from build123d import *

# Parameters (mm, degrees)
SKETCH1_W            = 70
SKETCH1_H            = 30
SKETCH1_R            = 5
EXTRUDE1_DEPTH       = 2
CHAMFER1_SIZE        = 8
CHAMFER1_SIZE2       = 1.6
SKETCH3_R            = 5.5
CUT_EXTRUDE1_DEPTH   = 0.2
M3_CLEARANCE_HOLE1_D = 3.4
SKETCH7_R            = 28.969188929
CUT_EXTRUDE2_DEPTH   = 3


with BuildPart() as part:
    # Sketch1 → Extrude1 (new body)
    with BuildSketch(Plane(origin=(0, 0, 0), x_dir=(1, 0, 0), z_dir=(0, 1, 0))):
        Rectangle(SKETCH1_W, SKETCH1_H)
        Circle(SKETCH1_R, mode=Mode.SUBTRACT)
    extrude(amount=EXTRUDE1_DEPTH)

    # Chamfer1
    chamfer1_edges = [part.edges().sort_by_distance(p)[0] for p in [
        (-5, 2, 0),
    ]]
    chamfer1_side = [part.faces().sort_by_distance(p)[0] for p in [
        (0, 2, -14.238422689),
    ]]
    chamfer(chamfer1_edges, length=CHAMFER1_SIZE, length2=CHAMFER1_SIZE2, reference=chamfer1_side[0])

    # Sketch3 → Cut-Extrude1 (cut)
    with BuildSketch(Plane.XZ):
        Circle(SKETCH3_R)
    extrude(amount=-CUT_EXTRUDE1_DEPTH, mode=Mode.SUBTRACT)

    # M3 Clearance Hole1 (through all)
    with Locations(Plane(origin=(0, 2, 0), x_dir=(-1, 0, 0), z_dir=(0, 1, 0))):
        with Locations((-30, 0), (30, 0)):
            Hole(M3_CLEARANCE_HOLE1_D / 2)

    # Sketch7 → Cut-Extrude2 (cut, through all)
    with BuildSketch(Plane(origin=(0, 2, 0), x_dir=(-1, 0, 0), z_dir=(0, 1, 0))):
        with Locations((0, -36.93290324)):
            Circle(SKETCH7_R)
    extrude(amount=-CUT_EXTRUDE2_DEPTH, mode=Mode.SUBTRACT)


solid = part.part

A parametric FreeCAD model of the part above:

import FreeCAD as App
import Part
import Sketcher

V = App.Vector
Q = App.Units.Quantity


def edges_at(feature, points):
    """Names of the edges that pass closest to the given points."""
    edges = feature.Shape.Edges
    near = lambda p: min(range(len(edges)), key=lambda i: edges[i].distToShape(Part.Vertex(*p))[0])
    return sorted({f"Edge{near(p) + 1}" for p in points})

doc = App.newDocument("Part")
body = doc.addObject("PartDesign::Body", "Body")

# Sketch on XZ plane
sketch1 = body.newObject("Sketcher::SketchObject", "Sketch")
sketch1.AttachmentSupport = (doc.getObject("XZ_Plane"), [""])
sketch1.MapMode = "FlatFace"
sketch1.addGeometry(Part.LineSegment(V(-35, -15, 0), V(-35, 15, 0)), False)
sketch1.addGeometry(Part.LineSegment(V(-35, 15, 0), V(35, 15, 0)), False)
sketch1.addGeometry(Part.LineSegment(V(35, 15, 0), V(35, -15, 0)), False)
sketch1.addGeometry(Part.LineSegment(V(35, -15, 0), V(-35, -15, 0)), False)
sketch1.addGeometry(Part.Circle(V(0, 0, 0), V(0, 0, 1), 5), False)
sketch1.addConstraint(Sketcher.Constraint("Coincident", 0, 2, 1, 1))
sketch1.addConstraint(Sketcher.Constraint("Coincident", 1, 2, 2, 1))
sketch1.addConstraint(Sketcher.Constraint("Coincident", 2, 2, 3, 1))
sketch1.addConstraint(Sketcher.Constraint("Coincident", 3, 2, 0, 1))
sketch1.addConstraint(Sketcher.Constraint("Vertical", 0))
sketch1.addConstraint(Sketcher.Constraint("Horizontal", 1))
sketch1.addConstraint(Sketcher.Constraint("Vertical", 2))
sketch1.addConstraint(Sketcher.Constraint("Horizontal", 3))
sketch1.addConstraint(Sketcher.Constraint("Coincident", 4, 3, -1, 1))
sketch1.addConstraint(Sketcher.Constraint("Symmetric", 0, 2, 2, 2, -1, 1))
sketch1.addConstraint(Sketcher.Constraint("Diameter", 4, Q("10 mm")))
sketch1.addConstraint(Sketcher.Constraint("DistanceX", 1, 1, 1, 2, Q("70 mm")))
sketch1.addConstraint(Sketcher.Constraint("DistanceY", 0, 1, 0, 2, Q("30 mm")))
pad1 = body.newObject("PartDesign::Pad", "Pad")
pad1.Profile = sketch1
pad1.Length = 2
pad1.Reversed = True
doc.recompute()

chamfer = body.newObject("PartDesign::Chamfer", "Chamfer")
chamfer.Base = (pad1, edges_at(pad1, [(-5, 2, 0)]))
chamfer.ChamferType = "Two distances"
chamfer.Size = 8
chamfer.Size2 = 1.6
chamfer.FlipDirection = True

# Sketch on XZ plane
sketch2 = body.newObject("Sketcher::SketchObject", "Sketch001")
sketch2.AttachmentSupport = (doc.getObject("XZ_Plane"), [""])
sketch2.MapMode = "FlatFace"
sketch2.addGeometry(Part.Circle(V(0, 0, 0), V(0, 0, 1), 5.5), False)
sketch2.addConstraint(Sketcher.Constraint("Coincident", 0, 3, -1, 1))
sketch2.addConstraint(Sketcher.Constraint("Diameter", 0, Q("11 mm")))
pocket1 = body.newObject("PartDesign::Pocket", "Pocket")
pocket1.Profile = sketch2
pocket1.Length = 0.2

# Sketch on XZ plane
sketch3 = body.newObject("Sketcher::SketchObject", "Sketch002")
sketch3.AttachmentSupport = (doc.getObject("XZ_Plane"), [""])
sketch3.MapMode = "FlatFace"
sketch3.AttachmentOffset = App.Placement(V(0, 0, -2), App.Rotation())
sketch3.addGeometry(Part.Circle(V(30, 0, 0), V(0, 0, 1), 1.7), False)
sketch3.addGeometry(Part.Circle(V(-30, 0, 0), V(0, 0, 1), 1.7), False)
sketch3.addConstraint(Sketcher.Constraint("Equal", 0, 1))
sketch3.addConstraint(Sketcher.Constraint("Symmetric", 0, 3, 1, 3, -1, 1))
sketch3.addConstraint(Sketcher.Constraint("PointOnObject", 0, 3, -1))
sketch3.addConstraint(Sketcher.Constraint("Diameter", 0, Q("3.4 mm")))
sketch3.addConstraint(Sketcher.Constraint("DistanceX", -1, 1, 0, 3, Q("30 mm")))
doc.recompute()
hole = body.newObject("PartDesign::Hole", "Hole")
hole.Profile = sketch3
hole.ThreadType = "None"
hole.Diameter = 3.4
hole.DepthType = "ThroughAll"
hole.Reversed = True

# Sketch on XZ plane
sketch4 = body.newObject("Sketcher::SketchObject", "Sketch003")
sketch4.AttachmentSupport = (doc.getObject("XZ_Plane"), [""])
sketch4.MapMode = "FlatFace"
sketch4.AttachmentOffset = App.Placement(V(0, 0, -2), App.Rotation())
sketch4.addGeometry(Part.Circle(V(0, -36.932903, 0), V(0, 0, 1), 28.969189), False)
sketch4.addConstraint(Sketcher.Constraint("PointOnObject", 0, 3, -2))
sketch4.addConstraint(Sketcher.Constraint("Diameter", 0, Q("57.938378 mm")))
sketch4.addConstraint(Sketcher.Constraint("DistanceY", 0, 3, -1, 1, Q("36.932903 mm")))
pocket2 = body.newObject("PartDesign::Pocket", "Pocket001")
pocket2.Profile = sketch4
pocket2.Type = "ThroughAll"
pocket2.Reversed = True

doc.recompute()
